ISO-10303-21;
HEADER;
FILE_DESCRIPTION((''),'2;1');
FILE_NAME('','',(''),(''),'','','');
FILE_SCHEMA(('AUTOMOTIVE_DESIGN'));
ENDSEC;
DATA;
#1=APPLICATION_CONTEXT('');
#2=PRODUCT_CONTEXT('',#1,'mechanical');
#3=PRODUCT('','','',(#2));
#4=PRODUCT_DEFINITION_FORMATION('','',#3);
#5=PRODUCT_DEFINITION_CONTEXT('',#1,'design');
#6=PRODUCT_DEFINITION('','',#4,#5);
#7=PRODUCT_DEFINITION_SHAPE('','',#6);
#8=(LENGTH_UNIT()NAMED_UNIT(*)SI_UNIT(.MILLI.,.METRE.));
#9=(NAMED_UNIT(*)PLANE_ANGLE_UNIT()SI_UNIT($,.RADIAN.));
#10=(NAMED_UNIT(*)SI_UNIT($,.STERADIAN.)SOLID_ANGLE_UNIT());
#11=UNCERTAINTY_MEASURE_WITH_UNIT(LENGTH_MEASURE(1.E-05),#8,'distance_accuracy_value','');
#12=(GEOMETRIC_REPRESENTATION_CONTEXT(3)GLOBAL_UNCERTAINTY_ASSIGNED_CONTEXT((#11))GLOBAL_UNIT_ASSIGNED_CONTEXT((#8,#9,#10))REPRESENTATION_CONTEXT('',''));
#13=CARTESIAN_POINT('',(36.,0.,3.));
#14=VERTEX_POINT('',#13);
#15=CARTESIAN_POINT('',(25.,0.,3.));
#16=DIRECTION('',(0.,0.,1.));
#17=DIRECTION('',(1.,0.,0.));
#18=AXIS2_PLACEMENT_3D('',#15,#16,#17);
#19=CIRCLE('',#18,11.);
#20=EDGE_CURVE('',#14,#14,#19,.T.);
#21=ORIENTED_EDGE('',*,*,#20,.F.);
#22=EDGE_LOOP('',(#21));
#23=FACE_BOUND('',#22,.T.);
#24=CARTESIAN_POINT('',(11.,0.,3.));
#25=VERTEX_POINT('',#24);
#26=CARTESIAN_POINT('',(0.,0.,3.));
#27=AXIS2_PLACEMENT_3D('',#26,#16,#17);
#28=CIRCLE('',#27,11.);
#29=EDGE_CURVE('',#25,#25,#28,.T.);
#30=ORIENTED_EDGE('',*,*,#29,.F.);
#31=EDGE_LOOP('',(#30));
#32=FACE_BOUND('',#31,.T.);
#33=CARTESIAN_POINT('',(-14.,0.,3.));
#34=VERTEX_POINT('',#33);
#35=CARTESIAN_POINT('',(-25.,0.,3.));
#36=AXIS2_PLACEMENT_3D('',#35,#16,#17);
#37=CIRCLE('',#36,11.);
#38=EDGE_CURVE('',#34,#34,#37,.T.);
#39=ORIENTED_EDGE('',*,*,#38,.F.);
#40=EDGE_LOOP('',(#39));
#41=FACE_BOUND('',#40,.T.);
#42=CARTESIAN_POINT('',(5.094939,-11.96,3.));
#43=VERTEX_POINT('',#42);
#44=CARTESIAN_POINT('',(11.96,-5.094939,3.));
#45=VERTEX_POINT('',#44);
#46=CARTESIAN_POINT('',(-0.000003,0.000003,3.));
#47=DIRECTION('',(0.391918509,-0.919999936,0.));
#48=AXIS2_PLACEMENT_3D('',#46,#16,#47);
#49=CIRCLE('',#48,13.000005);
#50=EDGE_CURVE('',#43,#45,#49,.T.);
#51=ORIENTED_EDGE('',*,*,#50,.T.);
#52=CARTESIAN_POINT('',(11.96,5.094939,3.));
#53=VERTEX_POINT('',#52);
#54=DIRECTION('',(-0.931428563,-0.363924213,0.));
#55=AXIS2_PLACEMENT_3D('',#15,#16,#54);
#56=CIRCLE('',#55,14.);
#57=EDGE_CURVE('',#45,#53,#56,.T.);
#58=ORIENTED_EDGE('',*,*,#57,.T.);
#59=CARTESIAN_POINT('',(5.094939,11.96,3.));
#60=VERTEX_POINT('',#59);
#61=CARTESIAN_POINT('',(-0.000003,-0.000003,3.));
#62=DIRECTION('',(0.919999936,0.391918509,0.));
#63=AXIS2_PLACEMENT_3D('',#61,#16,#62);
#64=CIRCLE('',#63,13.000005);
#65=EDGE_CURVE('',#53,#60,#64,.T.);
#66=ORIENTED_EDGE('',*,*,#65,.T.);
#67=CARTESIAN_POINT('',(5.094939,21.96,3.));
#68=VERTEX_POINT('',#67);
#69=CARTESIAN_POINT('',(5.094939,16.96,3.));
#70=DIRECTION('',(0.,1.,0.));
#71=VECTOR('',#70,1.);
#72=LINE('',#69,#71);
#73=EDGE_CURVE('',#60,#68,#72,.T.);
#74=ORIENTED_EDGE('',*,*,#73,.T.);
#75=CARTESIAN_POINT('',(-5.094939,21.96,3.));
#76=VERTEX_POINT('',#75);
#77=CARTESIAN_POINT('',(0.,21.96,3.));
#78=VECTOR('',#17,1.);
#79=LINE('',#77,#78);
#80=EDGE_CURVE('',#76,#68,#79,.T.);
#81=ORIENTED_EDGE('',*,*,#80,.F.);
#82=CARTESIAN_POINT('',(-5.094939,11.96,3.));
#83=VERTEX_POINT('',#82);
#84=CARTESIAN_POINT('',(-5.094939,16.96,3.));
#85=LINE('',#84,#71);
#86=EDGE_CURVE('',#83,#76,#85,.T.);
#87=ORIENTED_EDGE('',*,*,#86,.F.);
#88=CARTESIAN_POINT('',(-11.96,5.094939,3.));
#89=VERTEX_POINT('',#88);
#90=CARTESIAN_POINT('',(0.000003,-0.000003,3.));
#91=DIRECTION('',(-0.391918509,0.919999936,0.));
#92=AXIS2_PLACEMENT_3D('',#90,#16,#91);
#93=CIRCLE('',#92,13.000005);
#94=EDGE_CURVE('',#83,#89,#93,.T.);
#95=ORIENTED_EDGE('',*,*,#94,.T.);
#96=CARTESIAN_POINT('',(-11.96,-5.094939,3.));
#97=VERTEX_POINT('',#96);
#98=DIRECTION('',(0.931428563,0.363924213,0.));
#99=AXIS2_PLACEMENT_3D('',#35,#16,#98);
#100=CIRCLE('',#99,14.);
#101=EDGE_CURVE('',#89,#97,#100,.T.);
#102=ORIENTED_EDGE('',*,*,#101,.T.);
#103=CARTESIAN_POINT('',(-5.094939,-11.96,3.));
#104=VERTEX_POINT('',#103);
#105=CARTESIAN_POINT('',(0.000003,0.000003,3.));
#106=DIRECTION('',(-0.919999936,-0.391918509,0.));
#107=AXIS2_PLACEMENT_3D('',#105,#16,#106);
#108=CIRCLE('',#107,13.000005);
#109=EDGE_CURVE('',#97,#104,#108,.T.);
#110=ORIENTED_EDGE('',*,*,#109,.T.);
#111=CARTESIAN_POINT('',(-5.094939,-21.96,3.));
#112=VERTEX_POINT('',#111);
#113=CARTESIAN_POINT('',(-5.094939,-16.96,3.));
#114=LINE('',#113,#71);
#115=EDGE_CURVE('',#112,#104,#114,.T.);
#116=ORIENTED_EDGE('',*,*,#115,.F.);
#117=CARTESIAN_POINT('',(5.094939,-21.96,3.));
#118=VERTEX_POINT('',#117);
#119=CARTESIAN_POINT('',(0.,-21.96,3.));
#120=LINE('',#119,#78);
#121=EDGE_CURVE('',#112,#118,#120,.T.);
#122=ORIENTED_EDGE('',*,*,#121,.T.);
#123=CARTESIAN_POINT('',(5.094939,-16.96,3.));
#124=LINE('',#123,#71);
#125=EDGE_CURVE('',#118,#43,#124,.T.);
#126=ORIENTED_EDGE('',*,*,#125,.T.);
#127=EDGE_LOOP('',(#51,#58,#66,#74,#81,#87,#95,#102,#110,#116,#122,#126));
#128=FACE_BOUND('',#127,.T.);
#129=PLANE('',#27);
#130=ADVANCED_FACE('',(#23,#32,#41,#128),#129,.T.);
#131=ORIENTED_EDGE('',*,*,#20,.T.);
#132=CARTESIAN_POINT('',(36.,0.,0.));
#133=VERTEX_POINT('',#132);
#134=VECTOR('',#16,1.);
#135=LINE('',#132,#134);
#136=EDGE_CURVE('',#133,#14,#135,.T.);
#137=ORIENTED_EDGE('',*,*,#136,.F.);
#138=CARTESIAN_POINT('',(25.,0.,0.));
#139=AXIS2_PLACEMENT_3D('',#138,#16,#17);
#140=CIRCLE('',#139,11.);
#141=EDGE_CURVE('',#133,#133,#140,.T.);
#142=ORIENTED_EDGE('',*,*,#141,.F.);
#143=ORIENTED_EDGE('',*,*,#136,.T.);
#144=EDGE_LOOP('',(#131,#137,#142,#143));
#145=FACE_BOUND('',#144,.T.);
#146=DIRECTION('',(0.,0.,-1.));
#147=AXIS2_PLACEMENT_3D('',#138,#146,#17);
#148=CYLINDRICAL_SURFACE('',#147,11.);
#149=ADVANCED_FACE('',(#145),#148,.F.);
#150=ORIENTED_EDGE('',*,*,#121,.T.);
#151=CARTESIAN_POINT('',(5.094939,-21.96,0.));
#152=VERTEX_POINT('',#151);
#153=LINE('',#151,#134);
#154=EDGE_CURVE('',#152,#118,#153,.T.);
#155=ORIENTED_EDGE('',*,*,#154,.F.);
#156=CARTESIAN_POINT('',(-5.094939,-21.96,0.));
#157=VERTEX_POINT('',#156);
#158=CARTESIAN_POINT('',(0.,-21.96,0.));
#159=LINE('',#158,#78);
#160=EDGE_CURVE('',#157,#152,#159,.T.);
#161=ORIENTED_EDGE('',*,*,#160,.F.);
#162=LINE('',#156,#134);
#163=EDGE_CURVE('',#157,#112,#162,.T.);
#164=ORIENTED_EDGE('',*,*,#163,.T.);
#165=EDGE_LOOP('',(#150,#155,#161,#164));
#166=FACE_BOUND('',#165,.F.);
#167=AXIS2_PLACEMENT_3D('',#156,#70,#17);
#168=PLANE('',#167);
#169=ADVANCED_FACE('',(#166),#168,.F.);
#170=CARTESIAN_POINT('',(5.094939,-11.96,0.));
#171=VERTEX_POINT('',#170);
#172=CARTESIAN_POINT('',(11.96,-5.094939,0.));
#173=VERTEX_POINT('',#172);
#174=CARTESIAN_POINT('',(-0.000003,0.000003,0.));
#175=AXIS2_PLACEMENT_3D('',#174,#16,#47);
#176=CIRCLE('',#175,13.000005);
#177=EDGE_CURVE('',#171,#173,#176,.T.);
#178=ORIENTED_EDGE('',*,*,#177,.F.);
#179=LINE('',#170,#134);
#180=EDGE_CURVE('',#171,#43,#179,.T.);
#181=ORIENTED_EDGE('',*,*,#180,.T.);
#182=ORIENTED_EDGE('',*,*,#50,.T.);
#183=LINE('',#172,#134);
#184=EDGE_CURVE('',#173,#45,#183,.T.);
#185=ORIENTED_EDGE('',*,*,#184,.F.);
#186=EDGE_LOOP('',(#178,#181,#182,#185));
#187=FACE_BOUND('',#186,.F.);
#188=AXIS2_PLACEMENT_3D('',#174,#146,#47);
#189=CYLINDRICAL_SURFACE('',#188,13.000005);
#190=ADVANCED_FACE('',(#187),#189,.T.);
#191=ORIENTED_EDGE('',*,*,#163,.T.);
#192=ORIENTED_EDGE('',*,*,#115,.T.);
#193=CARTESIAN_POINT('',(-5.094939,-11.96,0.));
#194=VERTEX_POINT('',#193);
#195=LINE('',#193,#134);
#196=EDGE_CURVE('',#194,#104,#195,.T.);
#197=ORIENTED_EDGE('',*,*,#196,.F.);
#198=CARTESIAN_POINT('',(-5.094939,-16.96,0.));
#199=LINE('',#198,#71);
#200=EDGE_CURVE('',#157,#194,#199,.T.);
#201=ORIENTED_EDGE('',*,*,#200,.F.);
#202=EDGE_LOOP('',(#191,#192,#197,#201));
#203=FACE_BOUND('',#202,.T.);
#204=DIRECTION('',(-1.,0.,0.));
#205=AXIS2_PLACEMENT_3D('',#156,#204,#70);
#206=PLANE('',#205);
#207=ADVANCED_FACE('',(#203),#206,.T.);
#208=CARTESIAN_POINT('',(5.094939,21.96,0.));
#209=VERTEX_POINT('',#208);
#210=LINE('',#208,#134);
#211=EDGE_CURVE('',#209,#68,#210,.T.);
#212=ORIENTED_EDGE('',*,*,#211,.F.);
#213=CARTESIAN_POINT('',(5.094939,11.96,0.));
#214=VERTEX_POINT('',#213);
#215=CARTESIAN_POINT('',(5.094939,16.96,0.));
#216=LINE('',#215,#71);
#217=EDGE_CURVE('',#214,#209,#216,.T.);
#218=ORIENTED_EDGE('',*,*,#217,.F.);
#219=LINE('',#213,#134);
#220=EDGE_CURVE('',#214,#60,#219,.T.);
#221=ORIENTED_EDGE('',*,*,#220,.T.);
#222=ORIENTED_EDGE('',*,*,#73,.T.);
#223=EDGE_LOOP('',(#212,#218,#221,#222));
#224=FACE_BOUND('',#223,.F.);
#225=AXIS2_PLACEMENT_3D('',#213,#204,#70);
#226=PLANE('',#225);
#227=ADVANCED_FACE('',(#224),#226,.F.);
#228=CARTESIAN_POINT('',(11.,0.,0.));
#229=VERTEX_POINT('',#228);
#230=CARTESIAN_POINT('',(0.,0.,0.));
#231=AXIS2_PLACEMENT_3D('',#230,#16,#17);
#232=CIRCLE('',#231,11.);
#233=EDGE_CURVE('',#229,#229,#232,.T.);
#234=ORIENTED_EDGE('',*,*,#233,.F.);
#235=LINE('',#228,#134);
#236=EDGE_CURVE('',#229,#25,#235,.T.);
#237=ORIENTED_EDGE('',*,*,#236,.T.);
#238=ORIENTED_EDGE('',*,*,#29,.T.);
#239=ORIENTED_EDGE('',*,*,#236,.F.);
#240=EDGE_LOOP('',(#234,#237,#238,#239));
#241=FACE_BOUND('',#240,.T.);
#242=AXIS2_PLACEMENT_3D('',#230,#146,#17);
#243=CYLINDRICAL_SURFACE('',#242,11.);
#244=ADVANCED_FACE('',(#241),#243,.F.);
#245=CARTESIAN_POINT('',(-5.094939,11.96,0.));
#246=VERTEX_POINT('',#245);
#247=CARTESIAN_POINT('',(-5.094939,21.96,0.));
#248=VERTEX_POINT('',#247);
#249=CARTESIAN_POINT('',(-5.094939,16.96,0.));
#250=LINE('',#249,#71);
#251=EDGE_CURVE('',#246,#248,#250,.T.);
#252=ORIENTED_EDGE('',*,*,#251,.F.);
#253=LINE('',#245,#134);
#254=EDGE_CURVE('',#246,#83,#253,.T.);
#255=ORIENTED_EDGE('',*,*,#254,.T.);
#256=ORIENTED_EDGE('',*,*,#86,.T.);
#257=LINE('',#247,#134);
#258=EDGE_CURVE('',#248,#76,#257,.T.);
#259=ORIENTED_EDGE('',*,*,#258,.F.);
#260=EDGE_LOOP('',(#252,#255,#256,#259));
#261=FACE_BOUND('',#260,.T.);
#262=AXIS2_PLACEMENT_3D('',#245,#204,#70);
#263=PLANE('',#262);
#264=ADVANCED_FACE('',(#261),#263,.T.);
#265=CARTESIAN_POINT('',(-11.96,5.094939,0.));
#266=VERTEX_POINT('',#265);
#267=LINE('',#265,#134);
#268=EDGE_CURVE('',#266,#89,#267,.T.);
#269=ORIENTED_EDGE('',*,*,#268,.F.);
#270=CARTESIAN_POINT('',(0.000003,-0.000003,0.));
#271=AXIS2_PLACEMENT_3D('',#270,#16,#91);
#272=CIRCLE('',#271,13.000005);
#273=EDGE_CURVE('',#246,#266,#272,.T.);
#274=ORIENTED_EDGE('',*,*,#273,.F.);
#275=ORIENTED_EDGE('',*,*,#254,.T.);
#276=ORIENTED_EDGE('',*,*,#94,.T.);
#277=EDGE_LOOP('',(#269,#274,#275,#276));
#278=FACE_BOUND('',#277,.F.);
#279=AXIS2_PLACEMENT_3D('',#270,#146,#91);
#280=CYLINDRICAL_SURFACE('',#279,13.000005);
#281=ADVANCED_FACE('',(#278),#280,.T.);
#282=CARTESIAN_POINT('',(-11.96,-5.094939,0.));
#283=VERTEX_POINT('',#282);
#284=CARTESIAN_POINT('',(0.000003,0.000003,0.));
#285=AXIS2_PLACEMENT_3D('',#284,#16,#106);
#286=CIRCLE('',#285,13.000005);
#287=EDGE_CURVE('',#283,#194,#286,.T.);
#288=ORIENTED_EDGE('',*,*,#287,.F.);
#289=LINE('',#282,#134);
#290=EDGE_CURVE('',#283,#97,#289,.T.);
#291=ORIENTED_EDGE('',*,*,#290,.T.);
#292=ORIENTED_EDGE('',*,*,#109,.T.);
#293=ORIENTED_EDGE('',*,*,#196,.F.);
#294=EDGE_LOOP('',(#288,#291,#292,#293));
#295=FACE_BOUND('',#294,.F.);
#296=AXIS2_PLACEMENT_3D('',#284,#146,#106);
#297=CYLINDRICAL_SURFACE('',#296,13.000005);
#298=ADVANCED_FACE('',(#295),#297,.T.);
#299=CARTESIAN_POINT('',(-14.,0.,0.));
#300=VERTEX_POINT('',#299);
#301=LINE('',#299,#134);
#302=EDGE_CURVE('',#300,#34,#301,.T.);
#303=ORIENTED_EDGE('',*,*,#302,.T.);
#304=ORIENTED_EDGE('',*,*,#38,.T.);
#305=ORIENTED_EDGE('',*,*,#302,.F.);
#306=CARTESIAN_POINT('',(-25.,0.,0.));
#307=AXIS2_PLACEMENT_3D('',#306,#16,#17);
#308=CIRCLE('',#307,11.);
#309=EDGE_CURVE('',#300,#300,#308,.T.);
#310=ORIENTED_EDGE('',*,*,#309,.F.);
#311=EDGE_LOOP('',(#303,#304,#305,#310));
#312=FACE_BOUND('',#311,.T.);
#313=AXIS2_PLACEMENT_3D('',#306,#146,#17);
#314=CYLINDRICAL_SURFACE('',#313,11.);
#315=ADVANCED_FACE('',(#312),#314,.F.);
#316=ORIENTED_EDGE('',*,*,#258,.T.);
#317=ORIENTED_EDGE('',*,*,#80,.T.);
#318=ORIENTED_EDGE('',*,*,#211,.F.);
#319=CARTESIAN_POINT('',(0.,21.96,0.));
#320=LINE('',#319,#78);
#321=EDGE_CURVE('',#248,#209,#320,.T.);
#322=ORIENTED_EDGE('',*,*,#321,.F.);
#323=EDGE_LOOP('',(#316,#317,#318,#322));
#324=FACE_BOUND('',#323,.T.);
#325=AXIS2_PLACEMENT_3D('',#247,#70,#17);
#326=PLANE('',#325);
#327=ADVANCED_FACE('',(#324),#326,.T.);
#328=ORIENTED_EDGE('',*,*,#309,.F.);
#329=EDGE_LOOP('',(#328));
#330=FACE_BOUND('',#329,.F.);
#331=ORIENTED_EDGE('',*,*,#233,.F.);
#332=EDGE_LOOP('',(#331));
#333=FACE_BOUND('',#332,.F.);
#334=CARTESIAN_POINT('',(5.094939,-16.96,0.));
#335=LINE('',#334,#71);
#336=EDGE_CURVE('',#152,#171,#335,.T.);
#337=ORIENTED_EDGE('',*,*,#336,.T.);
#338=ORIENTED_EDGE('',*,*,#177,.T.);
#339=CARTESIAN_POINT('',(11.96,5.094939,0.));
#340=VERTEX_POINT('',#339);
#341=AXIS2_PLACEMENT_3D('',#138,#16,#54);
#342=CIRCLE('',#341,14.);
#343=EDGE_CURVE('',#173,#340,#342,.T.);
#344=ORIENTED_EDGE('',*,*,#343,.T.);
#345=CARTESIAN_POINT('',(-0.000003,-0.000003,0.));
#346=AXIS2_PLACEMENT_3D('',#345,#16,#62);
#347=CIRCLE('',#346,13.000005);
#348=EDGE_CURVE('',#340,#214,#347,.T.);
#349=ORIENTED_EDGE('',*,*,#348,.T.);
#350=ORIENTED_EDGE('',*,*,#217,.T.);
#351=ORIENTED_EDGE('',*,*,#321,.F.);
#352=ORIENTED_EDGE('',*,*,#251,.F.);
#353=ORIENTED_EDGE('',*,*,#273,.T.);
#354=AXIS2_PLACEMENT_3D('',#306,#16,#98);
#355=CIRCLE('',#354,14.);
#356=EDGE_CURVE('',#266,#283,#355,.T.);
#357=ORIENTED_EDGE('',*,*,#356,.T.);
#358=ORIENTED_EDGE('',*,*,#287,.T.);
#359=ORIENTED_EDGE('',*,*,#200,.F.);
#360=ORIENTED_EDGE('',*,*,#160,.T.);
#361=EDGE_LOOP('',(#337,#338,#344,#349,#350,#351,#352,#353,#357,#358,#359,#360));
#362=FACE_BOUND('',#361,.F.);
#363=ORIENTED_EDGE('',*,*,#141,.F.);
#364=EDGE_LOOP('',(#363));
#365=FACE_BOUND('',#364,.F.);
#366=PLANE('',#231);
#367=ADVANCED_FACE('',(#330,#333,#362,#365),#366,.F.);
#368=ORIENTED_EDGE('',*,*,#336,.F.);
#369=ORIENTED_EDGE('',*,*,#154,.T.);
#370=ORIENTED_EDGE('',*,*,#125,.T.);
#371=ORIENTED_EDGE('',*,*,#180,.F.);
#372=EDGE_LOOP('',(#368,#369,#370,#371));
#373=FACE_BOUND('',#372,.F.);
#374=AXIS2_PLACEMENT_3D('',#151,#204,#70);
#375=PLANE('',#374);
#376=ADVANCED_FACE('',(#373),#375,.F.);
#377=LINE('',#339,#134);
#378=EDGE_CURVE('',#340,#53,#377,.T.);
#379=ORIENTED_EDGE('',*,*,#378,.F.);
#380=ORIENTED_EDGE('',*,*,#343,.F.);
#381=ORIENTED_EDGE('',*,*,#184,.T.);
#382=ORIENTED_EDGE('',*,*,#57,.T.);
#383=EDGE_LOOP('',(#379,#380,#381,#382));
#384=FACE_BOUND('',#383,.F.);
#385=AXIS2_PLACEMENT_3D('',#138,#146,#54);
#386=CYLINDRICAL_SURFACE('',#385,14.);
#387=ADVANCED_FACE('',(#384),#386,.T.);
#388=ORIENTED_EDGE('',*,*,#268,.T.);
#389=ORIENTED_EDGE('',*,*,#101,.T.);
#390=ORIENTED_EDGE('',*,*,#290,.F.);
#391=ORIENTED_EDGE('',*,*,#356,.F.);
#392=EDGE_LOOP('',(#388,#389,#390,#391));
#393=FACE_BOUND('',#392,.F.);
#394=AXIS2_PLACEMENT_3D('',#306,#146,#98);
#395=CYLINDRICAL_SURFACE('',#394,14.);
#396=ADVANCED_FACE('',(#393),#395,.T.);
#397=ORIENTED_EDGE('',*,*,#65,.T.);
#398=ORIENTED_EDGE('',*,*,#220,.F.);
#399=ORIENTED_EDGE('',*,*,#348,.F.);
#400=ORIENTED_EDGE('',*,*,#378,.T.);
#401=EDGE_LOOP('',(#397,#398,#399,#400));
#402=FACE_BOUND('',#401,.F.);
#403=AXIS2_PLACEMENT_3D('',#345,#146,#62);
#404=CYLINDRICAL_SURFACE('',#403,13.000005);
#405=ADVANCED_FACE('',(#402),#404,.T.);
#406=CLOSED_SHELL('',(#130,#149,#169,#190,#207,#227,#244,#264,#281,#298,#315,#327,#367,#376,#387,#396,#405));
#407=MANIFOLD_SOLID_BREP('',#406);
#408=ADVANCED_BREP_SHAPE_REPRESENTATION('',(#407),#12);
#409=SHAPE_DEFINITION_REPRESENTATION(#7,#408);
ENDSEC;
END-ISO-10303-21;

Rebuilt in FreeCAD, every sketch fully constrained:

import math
import FreeCAD as App
import Part
import Sketcher
from FreeCAD import Vector

doc = App.newDocument("Part")
body = doc.addObject("PartDesign::Body", "Body")

sketch1 = body.newObject("Sketcher::SketchObject", "Sketch")
sketch1.AttachmentSupport = (doc.getObject("XY_Plane"), [""])
sketch1.MapMode = "FlatFace"
sketch1.addGeometry(Part.ArcOfCircle(Part.Circle(Vector(-0.000003, -0.000003, 0), Vector(0, 0, 1), 13.000005), math.radians(23.073927), math.radians(66.926073)), False)
sketch1.addGeometry(Part.LineSegment(Vector(5.094939, 11.96, 0), Vector(5.094939, 21.96, 0)), False)
sketch1.addGeometry(Part.LineSegment(Vector(5.094939, 21.96, 0), Vector(-5.094939, 21.96, 0)), False)
sketch1.addGeometry(Part.LineSegment(Vector(-5.094939, 21.96, 0), Vector(-5.094939, 11.96, 0)), False)
sketch1.addGeometry(Part.ArcOfCircle(Part.Circle(Vector(0.000003, -0.000003, 0), Vector(0, 0, 1), 13.000005), math.radians(113.073927), math.radians(156.926073)), False)
sketch1.addGeometry(Part.ArcOfCircle(Part.Circle(Vector(-25, 0, 0), Vector(0, 0, 1), 14), math.radians(21.341392), math.radians(338.658608)), False)
sketch1.addGeometry(Part.ArcOfCircle(Part.Circle(Vector(0.000003, 0.000003, 0), Vector(0, 0, 1), 13.000005), math.radians(-156.926073), math.radians(-113.073927)), False)
sketch1.addGeometry(Part.LineSegment(Vector(-5.094939, -11.96, 0), Vector(-5.094939, -21.96, 0)), False)
sketch1.addGeometry(Part.LineSegment(Vector(-5.094939, -21.96, 0), Vector(5.094939, -21.96, 0)), False)
sketch1.addGeometry(Part.LineSegment(Vector(5.094939, -21.96, 0), Vector(5.094939, -11.96, 0)), False)
sketch1.addGeometry(Part.ArcOfCircle(Part.Circle(Vector(-0.000003, 0.000003, 0), Vector(0, 0, 1), 13.000005), math.radians(-66.926073), math.radians(-23.073927)), False)
sketch1.addGeometry(Part.ArcOfCircle(Part.Circle(Vector(25, 0, 0), Vector(0, 0, 1), 14), math.radians(-158.658608), math.radians(158.658608)), False)
sketch1.addGeometry(Part.Circle(Vector(-25, 0, 0), Vector(0, 0, 1), 11), False)
sketch1.addGeometry(Part.Circle(Vector(0, 0, 0), Vector(0, 0, 1), 11), False)
sketch1.addGeometry(Part.Circle(Vector(25, 0, 0), Vector(0, 0, 1), 11), False)
sketch1.addConstraint(Sketcher.Constraint("Coincident", 0, 2, 1, 1))
sketch1.addConstraint(Sketcher.Constraint("Coincident", 1, 2, 2, 1))
sketch1.addConstraint(Sketcher.Constraint("Coincident", 2, 2, 3, 1))
sketch1.addConstraint(Sketcher.Constraint("Coincident", 3, 2, 4, 1))
sketch1.addConstraint(Sketcher.Constraint("Coincident", 4, 2, 5, 1))
sketch1.addConstraint(Sketcher.Constraint("Coincident", 5, 2, 6, 1))
sketch1.addConstraint(Sketcher.Constraint("Coincident", 6, 2, 7, 1))
sketch1.addConstraint(Sketcher.Constraint("Coincident", 7, 2, 8, 1))
sketch1.addConstraint(Sketcher.Constraint("Coincident", 8, 2, 9, 1))
sketch1.addConstraint(Sketcher.Constraint("Coincident", 9, 2, 10, 1))
sketch1.addConstraint(Sketcher.Constraint("Coincident", 10, 2, 11, 1))
sketch1.addConstraint(Sketcher.Constraint("Coincident", 11, 2, 0, 1))
sketch1.addConstraint(Sketcher.Constraint("Vertical", 1))
sketch1.addConstraint(Sketcher.Constraint("Horizontal", 2))
sketch1.addConstraint(Sketcher.Constraint("Vertical", 3))
sketch1.addConstraint(Sketcher.Constraint("Vertical", 7))
sketch1.addConstraint(Sketcher.Constraint("Horizontal", 8))
sketch1.addConstraint(Sketcher.Constraint("Vertical", 9))
sketch1.addConstraint(Sketcher.Constraint("Coincident", 0, 3, -1, 1))
sketch1.addConstraint(Sketcher.Constraint("Coincident", 4, 3, -1, 1))
sketch1.addConstraint(Sketcher.Constraint("Coincident", 6, 3, -1, 1))
sketch1.addConstraint(Sketcher.Constraint("Coincident", 10, 3, -1, 1))
sketch1.addConstraint(Sketcher.Constraint("Coincident", 13, 3, -1, 1))
sketch1.addConstraint(Sketcher.Constraint("Coincident", 12, 3, 5, 3))
sketch1.addConstraint(Sketcher.Constraint("Coincident", 14, 3, 11, 3))
sketch1.addConstraint(Sketcher.Constraint("Equal", 0, 4))
sketch1.addConstraint(Sketcher.Constraint("Equal", 4, 6))
sketch1.addConstraint(Sketcher.Constraint("Equal", 6, 10))
sketch1.addConstraint(Sketcher.Constraint("Equal", 5, 11))
sketch1.addConstraint(Sketcher.Constraint("Equal", 12, 13))
sketch1.addConstraint(Sketcher.Constraint("Equal", 13, 14))
sketch1.addConstraint(Sketcher.Constraint("Symmetric", 5, 3, 11, 3, -1, 1))
sketch1.addConstraint(Sketcher.Constraint("Symmetric", 1, 2, 7, 2, -1, 1))
sketch1.addConstraint(Sketcher.Constraint("PointOnObject", 5, 3, -1))
sketch1.addConstraint(Sketcher.Constraint("Horizontal", 0, 2, 3, 2))
sketch1.addConstraint(Sketcher.Constraint("Horizontal", 6, 2, 9, 2))
sketch1.addConstraint(Sketcher.Constraint("Diameter", 12, 22.0))
sketch1.addConstraint(Sketcher.Constraint("Radius", 5, 14.0))
sketch1.addConstraint(Sketcher.Constraint("DistanceY", 1, 1, 1, 2, 10.0))
sketch1.addConstraint(Sketcher.Constraint("DistanceX", 5, 3, -1, 1, 25.0))
sketch1.addConstraint(Sketcher.Constraint("DistanceY", -1, 1, 0, 2, 11.96))
sketch1.addConstraint(Sketcher.Constraint("DistanceX", 4, 2, -1, 1, 11.96))
pad1 = body.newObject("PartDesign::Pad", "Pad")
pad1.Profile = sketch1
pad1.Length = 3

doc.recompute()
